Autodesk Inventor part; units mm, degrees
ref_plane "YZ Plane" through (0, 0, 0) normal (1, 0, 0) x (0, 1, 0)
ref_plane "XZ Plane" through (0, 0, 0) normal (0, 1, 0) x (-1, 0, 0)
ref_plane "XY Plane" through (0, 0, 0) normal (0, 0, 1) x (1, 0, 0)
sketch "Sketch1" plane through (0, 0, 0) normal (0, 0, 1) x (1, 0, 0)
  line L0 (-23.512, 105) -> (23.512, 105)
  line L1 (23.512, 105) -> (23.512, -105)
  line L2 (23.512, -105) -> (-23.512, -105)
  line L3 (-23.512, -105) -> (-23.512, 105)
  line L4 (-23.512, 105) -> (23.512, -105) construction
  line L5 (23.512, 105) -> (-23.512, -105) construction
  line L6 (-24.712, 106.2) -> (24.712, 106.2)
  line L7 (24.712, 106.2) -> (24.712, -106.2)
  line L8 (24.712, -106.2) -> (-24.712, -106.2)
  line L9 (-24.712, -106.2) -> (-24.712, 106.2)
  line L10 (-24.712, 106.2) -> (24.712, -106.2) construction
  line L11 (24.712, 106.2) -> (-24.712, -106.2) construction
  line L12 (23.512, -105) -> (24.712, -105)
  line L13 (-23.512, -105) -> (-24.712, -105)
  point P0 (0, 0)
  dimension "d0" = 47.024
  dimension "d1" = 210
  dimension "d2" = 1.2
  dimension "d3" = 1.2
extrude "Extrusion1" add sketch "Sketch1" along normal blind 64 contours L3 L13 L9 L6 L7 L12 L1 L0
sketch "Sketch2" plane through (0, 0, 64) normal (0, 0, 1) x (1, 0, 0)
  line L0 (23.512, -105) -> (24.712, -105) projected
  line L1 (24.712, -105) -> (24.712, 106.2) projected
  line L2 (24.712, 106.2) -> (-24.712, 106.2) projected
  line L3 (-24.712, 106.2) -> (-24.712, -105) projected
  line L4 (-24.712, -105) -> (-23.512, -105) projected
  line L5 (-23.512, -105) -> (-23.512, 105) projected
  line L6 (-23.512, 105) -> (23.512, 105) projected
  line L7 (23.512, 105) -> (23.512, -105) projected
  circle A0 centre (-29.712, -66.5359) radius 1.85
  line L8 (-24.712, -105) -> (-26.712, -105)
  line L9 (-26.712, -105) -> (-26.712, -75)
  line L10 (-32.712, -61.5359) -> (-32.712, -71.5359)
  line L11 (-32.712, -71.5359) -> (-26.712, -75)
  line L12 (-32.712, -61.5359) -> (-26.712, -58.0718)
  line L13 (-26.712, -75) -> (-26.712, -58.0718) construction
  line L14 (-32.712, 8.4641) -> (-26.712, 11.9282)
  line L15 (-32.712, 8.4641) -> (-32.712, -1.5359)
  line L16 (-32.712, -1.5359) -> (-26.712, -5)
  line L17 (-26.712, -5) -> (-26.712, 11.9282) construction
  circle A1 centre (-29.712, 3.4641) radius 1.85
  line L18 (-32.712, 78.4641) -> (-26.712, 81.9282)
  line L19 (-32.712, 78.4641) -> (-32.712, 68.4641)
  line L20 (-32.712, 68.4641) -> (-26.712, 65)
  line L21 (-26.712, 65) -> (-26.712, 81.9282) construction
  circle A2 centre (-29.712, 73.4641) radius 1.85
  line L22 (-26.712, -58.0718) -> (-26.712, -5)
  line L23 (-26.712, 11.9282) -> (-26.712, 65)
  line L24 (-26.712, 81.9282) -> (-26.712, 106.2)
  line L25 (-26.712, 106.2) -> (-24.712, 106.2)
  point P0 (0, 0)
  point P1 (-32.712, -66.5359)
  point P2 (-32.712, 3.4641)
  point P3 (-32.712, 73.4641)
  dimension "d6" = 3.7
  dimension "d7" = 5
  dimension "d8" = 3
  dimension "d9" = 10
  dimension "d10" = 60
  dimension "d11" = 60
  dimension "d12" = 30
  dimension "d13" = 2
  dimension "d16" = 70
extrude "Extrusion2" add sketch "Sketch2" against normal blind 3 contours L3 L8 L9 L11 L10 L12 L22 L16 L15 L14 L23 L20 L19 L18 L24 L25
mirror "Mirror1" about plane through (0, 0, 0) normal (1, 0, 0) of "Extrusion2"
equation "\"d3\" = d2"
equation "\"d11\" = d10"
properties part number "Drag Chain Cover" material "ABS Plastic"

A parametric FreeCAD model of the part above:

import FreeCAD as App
import Part
import Sketcher
Q = App.Units.Quantity

doc = App.newDocument("Part")
params = doc.addObject("Spreadsheet::Sheet", "Params")
for row, (alias, value) in enumerate([
    ("sketch1_height", "210 mm"),
    ("sketch1_width", "1.2 mm"),
    ("pad1_length", "64 mm"),
    ("sketch2_diameter", "3.7 mm"),
    ("sketch2_width", "2 mm"),
    ("sketch2_height", "10 mm"),
    ("sketch2_height2", "30 mm"),
    ("sketch2_height3", "211.2 mm"),
    ("pad2_length", "3 mm"),
], start=1):
    params.set(f"A{row}", alias)
    params.set(f"B{row}", "=" + value)
    params.setAlias(f"B{row}", alias)

body = doc.addObject("PartDesign::Body", "Body")

# Sketch on XY plane
sketch1 = body.newObject("Sketcher::SketchObject", "Sketch")
sketch1.AttachmentSupport = (doc.getObject("XY_Plane"), [""])
sketch1.MapMode = "FlatFace"
sketch1.addGeometry(Part.LineSegment(App.Vector(-23.512, -105, 0), App.Vector(-23.512, 105, 0)), False)
sketch1.addGeometry(Part.LineSegment(App.Vector(-23.512, 105, 0), App.Vector(23.512, 105, 0)), False)
sketch1.addGeometry(Part.LineSegment(App.Vector(23.512, 105, 0), App.Vector(23.512, -105, 0)), False)
sketch1.addGeometry(Part.LineSegment(App.Vector(23.512, -105, 0), App.Vector(24.712, -105, 0)), False)
sketch1.addGeometry(Part.LineSegment(App.Vector(24.712, -105, 0), App.Vector(24.712, 106.2, 0)), False)
sketch1.addGeometry(Part.LineSegment(App.Vector(24.712, 106.2, 0), App.Vector(-24.712, 106.2, 0)), False)
sketch1.addGeometry(Part.LineSegment(App.Vector(-24.712, 106.2, 0), App.Vector(-24.712, -105, 0)), False)
sketch1.addGeometry(Part.LineSegment(App.Vector(-24.712, -105, 0), App.Vector(-23.512, -105, 0)), False)
sketch1.addConstraint(Sketcher.Constraint("Coincident", 0, 2, 1, 1))
sketch1.addConstraint(Sketcher.Constraint("Coincident", 1, 2, 2, 1))
sketch1.addConstraint(Sketcher.Constraint("Coincident", 2, 2, 3, 1))
sketch1.addConstraint(Sketcher.Constraint("Coincident", 3, 2, 4, 1))
sketch1.addConstraint(Sketcher.Constraint("Coincident", 4, 2, 5, 1))
sketch1.addConstraint(Sketcher.Constraint("Coincident", 5, 2, 6, 1))
sketch1.addConstraint(Sketcher.Constraint("Coincident", 6, 2, 7, 1))
sketch1.addConstraint(Sketcher.Constraint("Coincident", 7, 2, 0, 1))
sketch1.addConstraint(Sketcher.Constraint("Vertical", 0))
sketch1.addConstraint(Sketcher.Constraint("Horizontal", 1))
sketch1.addConstraint(Sketcher.Constraint("Vertical", 2))
sketch1.addConstraint(Sketcher.Constraint("Horizontal", 3))
sketch1.addConstraint(Sketcher.Constraint("Vertical", 4))
sketch1.addConstraint(Sketcher.Constraint("Horizontal", 5))
sketch1.addConstraint(Sketcher.Constraint("Vertical", 6))
sketch1.addConstraint(Sketcher.Constraint("Horizontal", 7))
sketch1.addConstraint(Sketcher.Constraint("Symmetric", 0, 2, 2, 2, -1, 1))
sketch1.addConstraint(Sketcher.Constraint("Symmetric", 3, 2, 6, 2, -2))
sketch1.addConstraint(Sketcher.Constraint("DistanceY", 0, 1, 0, 2, Q("210 mm")))
sketch1.addConstraint(Sketcher.Constraint("DistanceX", 3, 1, 3, 2, Q("1.2 mm")))
sketch1.addConstraint(Sketcher.Constraint("DistanceY", 1, 2, 4, 2, Q("1.2 mm")))
sketch1.addConstraint(Sketcher.Constraint("DistanceX", 1, 1, 1, 2, Q("47.024 mm")))
sketch1.setExpression("Constraints[18]", "Params.sketch1_height")
sketch1.setExpression("Constraints[19]", "Params.sketch1_width")
pad1 = body.newObject("PartDesign::Pad", "Pad")
pad1.Profile = sketch1
pad1.setExpression("Length", "Params.pad1_length")

# Sketch on XY plane
sketch2 = body.newObject("Sketcher::SketchObject", "Sketch001")
sketch2.AttachmentSupport = (doc.getObject("XY_Plane"), [""])
sketch2.MapMode = "FlatFace"
sketch2.AttachmentOffset = App.Placement(App.Vector(0, 0, 64), App.Rotation())
sketch2.addGeometry(Part.LineSegment(App.Vector(-24.712, -105, 0), App.Vector(-24.712, 106.2, 0)), False)
sketch2.addGeometry(Part.LineSegment(App.Vector(-24.712, 106.2, 0), App.Vector(-26.712, 106.2, 0)), False)
sketch2.addGeometry(Part.LineSegment(App.Vector(-26.712, 106.2, 0), App.Vector(-26.712, 81.9282, 0)), False)
sketch2.addGeometry(Part.LineSegment(App.Vector(-26.712, 81.9282, 0), App.Vector(-32.712, 78.4641, 0)), False)
sketch2.addGeometry(Part.LineSegment(App.Vector(-32.712, 78.4641, 0), App.Vector(-32.712, 68.4641, 0)), False)
sketch2.addGeometry(Part.LineSegment(App.Vector(-32.712, 68.4641, 0), App.Vector(-26.712, 65, 0)), False)
sketch2.addGeometry(Part.LineSegment(App.Vector(-26.712, 65, 0), App.Vector(-26.712, 11.9282, 0)), False)
sketch2.addGeometry(Part.LineSegment(App.Vector(-26.712, 11.9282, 0), App.Vector(-32.712, 8.4641, 0)), False)
sketch2.addGeometry(Part.LineSegment(App.Vector(-32.712, 8.4641, 0), App.Vector(-32.712, -1.5359, 0)), False)
sketch2.addGeometry(Part.LineSegment(App.Vector(-32.712, -1.5359, 0), App.Vector(-26.712, -5, 0)), False)
sketch2.addGeometry(Part.LineSegment(App.Vector(-26.712, -5, 0), App.Vector(-26.712, -58.0718, 0)), False)
sketch2.addGeometry(Part.LineSegment(App.Vector(-26.712, -58.0718, 0), App.Vector(-32.712, -61.5359, 0)), False)
sketch2.addGeometry(Part.LineSegment(App.Vector(-32.712, -61.5359, 0), App.Vector(-32.712, -71.5359, 0)), False)
sketch2.addGeometry(Part.LineSegment(App.Vector(-32.712, -71.5359, 0), App.Vector(-26.712, -75, 0)), False)
sketch2.addGeometry(Part.LineSegment(App.Vector(-26.712, -75, 0), App.Vector(-26.712, -105, 0)), False)
sketch2.addGeometry(Part.LineSegment(App.Vector(-26.712, -105, 0), App.Vector(-24.712, -105, 0)), False)
sketch2.addGeometry(Part.Circle(App.Vector(-29.712, -66.5359, 0), App.Vector(0, 0, 1), 1.85), False)
sketch2.addGeometry(Part.Circle(App.Vector(-29.712, 3.4641, 0), App.Vector(0, 0, 1), 1.85), False)
sketch2.addGeometry(Part.Circle(App.Vector(-29.712, 73.4641, 0), App.Vector(0, 0, 1), 1.85), False)
sketch2.addConstraint(Sketcher.Constraint("Coincident", 0, 2, 1, 1))
sketch2.addConstraint(Sketcher.Constraint("Coincident", 1, 2, 2, 1))
sketch2.addConstraint(Sketcher.Constraint("Coincident", 2, 2, 3, 1))
sketch2.addConstraint(Sketcher.Constraint("Coincident", 3, 2, 4, 1))
sketch2.addConstraint(Sketcher.Constraint("Coincident", 4, 2, 5, 1))
sketch2.addConstraint(Sketcher.Constraint("Coincident", 5, 2, 6, 1))
sketch2.addConstraint(Sketcher.Constraint("Coincident", 6, 2, 7, 1))
sketch2.addConstraint(Sketcher.Constraint("Coincident", 7, 2, 8, 1))
sketch2.addConstraint(Sketcher.Constraint("Coincident", 8, 2, 9, 1))
sketch2.addConstraint(Sketcher.Constraint("Coincident", 9, 2, 10, 1))
sketch2.addConstraint(Sketcher.Constraint("Coincident", 10, 2, 11, 1))
sketch2.addConstraint(Sketcher.Constraint("Coincident", 11, 2, 12, 1))
sketch2.addConstraint(Sketcher.Constraint("Coincident", 12, 2, 13, 1))
sketch2.addConstraint(Sketcher.Constraint("Coincident", 13, 2, 14, 1))
sketch2.addConstraint(Sketcher.Constraint("Coincident", 14, 2, 15, 1))
sketch2.addConstraint(Sketcher.Constraint("Coincident", 15, 2, 0, 1))
sketch2.addConstraint(Sketcher.Constraint("Vertical", 0))
sketch2.addConstraint(Sketcher.Constraint("Horizontal", 1))
sketch2.addConstraint(Sketcher.Constraint("Vertical", 2))
sketch2.addConstraint(Sketcher.Constraint("Vertical", 4))
sketch2.addConstraint(Sketcher.Constraint("Vertical", 6))
sketch2.addConstraint(Sketcher.Constraint("Vertical", 8))
sketch2.addConstraint(Sketcher.Constraint("Vertical", 10))
sketch2.addConstraint(Sketcher.Constraint("Vertical", 12))
sketch2.addConstraint(Sketcher.Constraint("Vertical", 14))
sketch2.addConstraint(Sketcher.Constraint("Horizontal", 15))
sketch2.addConstraint(Sketcher.Constraint("Equal", 16, 17))
sketch2.addConstraint(Sketcher.Constraint("Equal", 17, 18))
sketch2.addConstraint(Sketcher.Constraint("Parallel", 3, 7))
sketch2.addConstraint(Sketcher.Constraint("Parallel", 5, 9))
sketch2.addConstraint(Sketcher.Constraint("Parallel", 7, 11))
sketch2.addConstraint(Sketcher.Constraint("Parallel", 9, 13))
sketch2.addConstraint(Sketcher.Constraint("Vertical", 16, 3, 17, 3))
sketch2.addConstraint(Sketcher.Constraint("Vertical", 17, 3, 18, 3))
sketch2.addConstraint(Sketcher.Constraint("Vertical", 2, 2, 5, 2))
sketch2.addConstraint(Sketcher.Constraint("Vertical", 4, 2, 7, 2))
sketch2.addConstraint(Sketcher.Constraint("Vertical", 6, 2, 9, 2))
sketch2.addConstraint(Sketcher.Constraint("Vertical", 8, 2, 11, 2))
sketch2.addConstraint(Sketcher.Constraint("Vertical", 10, 2, 13, 2))
sketch2.addConstraint(Sketcher.Constraint("Equal", 4, 8))
sketch2.addConstraint(Sketcher.Constraint("Equal", 6, 10))
sketch2.addConstraint(Sketcher.Constraint("Equal", 8, 12))
sketch2.addConstraint(Sketcher.Constraint("Equal", 3, 5))
sketch2.addConstraint(Sketcher.Constraint("Diameter", 16, Q("3.7 mm")))
sketch2.addConstraint(Sketcher.Constraint("DistanceX", 1, 2, 1, 1, Q("2 mm")))
sketch2.addConstraint(Sketcher.Constraint("DistanceY", 4, 2, 4, 1, Q("10 mm")))
sketch2.addConstraint(Sketcher.Constraint("DistanceY", 14, 2, 14, 1, Q("30 mm")))
sketch2.addConstraint(Sketcher.Constraint("Angle", 5, Q("-30 deg")))
sketch2.addConstraint(Sketcher.Constraint("DistanceY", 9, 2, -1, 1, Q("5 mm")))
sketch2.addConstraint(Sketcher.Constraint("DistanceY", 16, 3, 17, 3, Q("70 mm")))
sketch2.addConstraint(Sketcher.Constraint("DistanceY", 17, 3, 18, 3, Q("70 mm")))
sketch2.addConstraint(Sketcher.Constraint("DistanceX", 18, 3, 0, 2, Q("5 mm")))
sketch2.addConstraint(Sketcher.Constraint("DistanceX", 3, 2, 18, 3, Q("3 mm")))
sketch2.addConstraint(Sketcher.Constraint("DistanceY", 18, 3, 3, 2, Q("5 mm")))
sketch2.addConstraint(Sketcher.Constraint("DistanceY", 17, 3, 7, 2, Q("5 mm")))
sketch2.addConstraint(Sketcher.Constraint("DistanceY", 0, 1, 0, 2, Q("211.2 mm")))
sketch2.addConstraint(Sketcher.Constraint("DistanceX", 16, 3, -1, 1, Q("29.712 mm")))
sketch2.setExpression("Constraints[43]", "Params.sketch2_diameter")
sketch2.setExpression("Constraints[44]", "Params.sketch2_width")
sketch2.setExpression("Constraints[45]", "Params.sketch2_height")
sketch2.setExpression("Constraints[46]", "Params.sketch2_height2")
sketch2.setExpression("Constraints[55]", "Params.sketch2_height3")
pad2 = body.newObject("PartDesign::Pad", "Pad001")
pad2.Profile = sketch2
pad2.setExpression("Length", "Params.pad2_length")
pad2.Reversed = True
doc.recompute()

mirrored = body.newObject("PartDesign::Mirrored", "Mirrored")
mirrored.Originals = [pad2]
mirrored.MirrorPlane = (doc.getObject("YZ_Plane"), [""])
body.Tip = mirrored

doc.recompute()
